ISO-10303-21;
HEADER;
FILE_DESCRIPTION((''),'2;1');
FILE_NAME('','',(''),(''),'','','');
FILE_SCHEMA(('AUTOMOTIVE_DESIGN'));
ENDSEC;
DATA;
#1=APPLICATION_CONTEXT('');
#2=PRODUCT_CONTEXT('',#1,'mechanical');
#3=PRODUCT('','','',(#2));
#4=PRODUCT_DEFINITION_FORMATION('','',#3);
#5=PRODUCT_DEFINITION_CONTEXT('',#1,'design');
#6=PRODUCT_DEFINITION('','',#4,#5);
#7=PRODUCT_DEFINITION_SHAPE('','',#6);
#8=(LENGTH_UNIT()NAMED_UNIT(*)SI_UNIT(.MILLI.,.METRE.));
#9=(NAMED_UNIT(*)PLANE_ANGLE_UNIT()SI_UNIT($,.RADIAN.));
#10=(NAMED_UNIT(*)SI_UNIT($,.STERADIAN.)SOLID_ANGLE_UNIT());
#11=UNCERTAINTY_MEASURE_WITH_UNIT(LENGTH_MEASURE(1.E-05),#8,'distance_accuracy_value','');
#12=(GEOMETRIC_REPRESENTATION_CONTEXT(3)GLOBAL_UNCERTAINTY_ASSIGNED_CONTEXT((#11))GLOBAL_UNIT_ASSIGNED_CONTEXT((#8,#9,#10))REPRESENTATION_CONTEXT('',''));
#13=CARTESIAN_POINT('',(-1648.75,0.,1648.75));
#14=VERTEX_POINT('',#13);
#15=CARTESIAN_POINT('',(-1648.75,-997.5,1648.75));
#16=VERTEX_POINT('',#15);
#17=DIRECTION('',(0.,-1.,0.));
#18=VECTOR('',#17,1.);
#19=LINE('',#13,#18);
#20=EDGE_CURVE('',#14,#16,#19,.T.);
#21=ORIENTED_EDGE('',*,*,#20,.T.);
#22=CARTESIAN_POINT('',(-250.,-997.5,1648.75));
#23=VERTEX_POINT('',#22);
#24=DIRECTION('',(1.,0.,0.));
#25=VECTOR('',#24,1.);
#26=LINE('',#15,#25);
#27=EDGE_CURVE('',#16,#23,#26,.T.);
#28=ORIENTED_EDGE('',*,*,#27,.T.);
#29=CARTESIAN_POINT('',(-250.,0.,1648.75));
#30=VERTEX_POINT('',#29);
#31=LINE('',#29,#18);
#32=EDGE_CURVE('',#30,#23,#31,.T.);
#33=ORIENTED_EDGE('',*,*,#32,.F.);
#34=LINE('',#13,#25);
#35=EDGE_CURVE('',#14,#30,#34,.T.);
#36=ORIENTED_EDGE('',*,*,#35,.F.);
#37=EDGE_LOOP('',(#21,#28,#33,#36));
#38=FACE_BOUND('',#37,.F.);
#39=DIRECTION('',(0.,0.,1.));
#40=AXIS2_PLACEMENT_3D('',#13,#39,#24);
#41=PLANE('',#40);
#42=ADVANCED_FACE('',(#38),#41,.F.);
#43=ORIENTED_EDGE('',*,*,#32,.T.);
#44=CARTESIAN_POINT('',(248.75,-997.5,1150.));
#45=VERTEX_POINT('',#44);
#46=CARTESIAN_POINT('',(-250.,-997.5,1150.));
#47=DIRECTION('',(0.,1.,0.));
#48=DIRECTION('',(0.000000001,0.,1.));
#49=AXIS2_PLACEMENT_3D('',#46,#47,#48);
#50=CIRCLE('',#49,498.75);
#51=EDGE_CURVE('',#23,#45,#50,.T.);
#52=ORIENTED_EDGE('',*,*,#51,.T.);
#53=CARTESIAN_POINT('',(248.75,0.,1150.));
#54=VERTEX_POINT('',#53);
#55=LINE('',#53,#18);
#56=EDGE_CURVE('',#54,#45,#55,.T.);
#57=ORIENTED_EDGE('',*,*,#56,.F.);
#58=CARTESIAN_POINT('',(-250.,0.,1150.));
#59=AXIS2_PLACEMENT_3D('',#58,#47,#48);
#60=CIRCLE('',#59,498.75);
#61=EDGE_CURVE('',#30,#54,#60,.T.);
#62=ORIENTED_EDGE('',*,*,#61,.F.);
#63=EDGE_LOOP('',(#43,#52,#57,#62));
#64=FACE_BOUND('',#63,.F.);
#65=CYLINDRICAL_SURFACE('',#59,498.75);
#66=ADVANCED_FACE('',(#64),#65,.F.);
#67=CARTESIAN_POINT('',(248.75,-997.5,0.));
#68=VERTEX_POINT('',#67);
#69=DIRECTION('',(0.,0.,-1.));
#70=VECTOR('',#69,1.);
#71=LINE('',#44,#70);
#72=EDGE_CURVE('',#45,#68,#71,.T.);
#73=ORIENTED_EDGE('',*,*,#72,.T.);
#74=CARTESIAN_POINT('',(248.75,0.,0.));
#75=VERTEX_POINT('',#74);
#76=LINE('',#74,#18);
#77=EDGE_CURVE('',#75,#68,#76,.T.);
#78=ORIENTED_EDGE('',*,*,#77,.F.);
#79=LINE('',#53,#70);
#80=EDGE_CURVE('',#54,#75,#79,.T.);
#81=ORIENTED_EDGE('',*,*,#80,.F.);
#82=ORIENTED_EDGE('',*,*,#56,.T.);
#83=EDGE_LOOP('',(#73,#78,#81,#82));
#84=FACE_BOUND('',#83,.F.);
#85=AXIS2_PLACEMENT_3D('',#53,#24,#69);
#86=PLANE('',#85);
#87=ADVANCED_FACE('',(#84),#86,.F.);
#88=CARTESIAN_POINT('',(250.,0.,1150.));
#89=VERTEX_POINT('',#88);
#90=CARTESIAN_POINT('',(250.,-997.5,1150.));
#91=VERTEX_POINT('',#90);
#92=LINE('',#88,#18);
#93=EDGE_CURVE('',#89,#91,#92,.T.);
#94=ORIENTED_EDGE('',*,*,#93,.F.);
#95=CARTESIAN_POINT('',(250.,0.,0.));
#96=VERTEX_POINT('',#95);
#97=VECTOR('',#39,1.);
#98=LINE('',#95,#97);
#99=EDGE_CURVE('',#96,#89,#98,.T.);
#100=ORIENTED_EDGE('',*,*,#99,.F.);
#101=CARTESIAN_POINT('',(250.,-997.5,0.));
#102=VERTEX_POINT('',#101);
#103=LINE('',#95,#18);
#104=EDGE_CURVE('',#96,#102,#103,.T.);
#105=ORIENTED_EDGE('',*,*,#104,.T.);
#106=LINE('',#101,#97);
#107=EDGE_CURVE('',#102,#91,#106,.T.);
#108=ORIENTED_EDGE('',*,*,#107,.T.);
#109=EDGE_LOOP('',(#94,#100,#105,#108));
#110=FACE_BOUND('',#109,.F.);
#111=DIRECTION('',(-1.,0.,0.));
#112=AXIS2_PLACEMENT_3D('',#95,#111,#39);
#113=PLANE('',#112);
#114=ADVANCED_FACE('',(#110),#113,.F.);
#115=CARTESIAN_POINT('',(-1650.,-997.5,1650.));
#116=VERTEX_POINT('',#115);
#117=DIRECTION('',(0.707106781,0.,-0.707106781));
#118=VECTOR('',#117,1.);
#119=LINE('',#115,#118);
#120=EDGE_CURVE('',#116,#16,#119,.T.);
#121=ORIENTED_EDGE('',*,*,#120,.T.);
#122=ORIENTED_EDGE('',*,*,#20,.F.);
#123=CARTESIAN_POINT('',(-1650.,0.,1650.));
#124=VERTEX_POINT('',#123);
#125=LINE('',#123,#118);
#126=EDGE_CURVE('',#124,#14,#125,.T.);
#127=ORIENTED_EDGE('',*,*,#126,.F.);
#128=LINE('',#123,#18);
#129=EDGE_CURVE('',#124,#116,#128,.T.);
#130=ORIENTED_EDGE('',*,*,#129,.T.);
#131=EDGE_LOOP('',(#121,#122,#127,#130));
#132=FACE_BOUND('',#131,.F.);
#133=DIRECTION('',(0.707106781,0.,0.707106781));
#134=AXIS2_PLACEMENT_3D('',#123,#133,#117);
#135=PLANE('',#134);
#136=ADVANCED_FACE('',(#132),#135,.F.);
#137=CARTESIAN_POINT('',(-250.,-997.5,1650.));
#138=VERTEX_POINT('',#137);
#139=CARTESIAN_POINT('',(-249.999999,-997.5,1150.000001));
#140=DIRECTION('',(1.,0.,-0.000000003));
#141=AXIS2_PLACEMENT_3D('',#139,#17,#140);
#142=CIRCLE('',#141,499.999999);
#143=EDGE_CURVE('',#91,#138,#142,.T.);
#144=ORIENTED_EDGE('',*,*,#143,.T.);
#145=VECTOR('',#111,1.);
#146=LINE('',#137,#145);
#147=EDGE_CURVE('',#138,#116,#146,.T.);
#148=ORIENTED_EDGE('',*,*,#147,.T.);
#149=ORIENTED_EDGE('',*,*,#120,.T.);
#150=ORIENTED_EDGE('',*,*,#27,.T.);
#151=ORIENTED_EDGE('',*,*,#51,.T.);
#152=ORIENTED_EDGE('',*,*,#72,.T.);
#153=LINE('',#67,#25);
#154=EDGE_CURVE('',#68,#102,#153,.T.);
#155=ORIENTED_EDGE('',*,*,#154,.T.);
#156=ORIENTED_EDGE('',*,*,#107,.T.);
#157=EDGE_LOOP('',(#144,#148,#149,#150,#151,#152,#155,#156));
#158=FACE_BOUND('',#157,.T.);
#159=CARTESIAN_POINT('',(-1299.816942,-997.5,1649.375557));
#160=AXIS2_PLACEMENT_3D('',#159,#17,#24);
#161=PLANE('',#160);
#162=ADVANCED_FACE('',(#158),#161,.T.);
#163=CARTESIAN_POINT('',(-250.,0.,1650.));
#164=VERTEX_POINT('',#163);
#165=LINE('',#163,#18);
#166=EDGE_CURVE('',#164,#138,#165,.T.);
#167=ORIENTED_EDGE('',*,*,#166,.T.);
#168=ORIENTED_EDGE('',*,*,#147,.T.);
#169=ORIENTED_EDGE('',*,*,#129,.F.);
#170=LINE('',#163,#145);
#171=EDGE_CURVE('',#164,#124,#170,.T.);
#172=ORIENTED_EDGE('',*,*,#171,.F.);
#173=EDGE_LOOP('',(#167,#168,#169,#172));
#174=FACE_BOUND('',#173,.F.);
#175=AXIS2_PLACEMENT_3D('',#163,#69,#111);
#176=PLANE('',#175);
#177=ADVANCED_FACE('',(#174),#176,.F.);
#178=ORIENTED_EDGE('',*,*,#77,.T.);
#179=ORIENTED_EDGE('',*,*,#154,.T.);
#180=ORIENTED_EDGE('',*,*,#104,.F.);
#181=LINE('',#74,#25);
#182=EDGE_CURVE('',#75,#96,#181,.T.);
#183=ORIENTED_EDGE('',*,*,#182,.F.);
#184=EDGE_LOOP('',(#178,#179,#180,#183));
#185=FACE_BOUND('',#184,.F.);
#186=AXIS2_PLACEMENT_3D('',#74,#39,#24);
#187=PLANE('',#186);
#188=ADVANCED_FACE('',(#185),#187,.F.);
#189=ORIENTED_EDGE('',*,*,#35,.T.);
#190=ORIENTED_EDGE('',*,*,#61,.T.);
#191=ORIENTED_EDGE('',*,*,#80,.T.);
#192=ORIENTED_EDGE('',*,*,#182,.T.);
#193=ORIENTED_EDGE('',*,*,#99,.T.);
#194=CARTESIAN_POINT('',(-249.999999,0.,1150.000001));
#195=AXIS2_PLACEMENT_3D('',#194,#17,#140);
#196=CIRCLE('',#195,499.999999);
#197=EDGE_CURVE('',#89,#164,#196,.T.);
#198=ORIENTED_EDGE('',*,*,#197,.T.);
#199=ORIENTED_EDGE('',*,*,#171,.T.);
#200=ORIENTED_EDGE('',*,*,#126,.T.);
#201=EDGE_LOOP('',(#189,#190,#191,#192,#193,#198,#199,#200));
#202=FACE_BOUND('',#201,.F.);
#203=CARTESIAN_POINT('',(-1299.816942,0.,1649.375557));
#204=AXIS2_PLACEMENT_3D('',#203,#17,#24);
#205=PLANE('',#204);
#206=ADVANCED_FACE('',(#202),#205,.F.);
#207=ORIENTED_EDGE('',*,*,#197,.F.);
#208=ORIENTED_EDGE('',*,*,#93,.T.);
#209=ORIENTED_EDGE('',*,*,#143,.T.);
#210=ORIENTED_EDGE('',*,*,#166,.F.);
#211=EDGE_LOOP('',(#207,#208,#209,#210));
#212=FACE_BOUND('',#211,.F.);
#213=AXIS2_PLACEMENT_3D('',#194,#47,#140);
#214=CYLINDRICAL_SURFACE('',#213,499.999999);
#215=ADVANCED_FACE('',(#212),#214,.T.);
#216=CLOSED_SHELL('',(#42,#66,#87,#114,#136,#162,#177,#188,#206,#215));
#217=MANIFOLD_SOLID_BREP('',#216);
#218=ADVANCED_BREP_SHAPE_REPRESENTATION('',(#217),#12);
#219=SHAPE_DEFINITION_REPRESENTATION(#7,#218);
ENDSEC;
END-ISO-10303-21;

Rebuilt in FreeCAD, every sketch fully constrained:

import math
import FreeCAD as App
import Part
import Sketcher

V = App.Vector
Q = App.Units.Quantity

doc = App.newDocument("Part")
body = doc.addObject("PartDesign::Body", "Body")

# Sketch on XZ plane
sketch1 = body.newObject("Sketcher::SketchObject", "Sketch")
sketch1.AttachmentSupport = (doc.getObject("XZ_Plane"), [""])
sketch1.MapMode = "FlatFace"
sketch1.addGeometry([
    Part.LineSegment(V(-1648.75, 1648.75, 0), V(-250, 1648.75, 0)),  # 0
    Part.ArcOfCircle(Part.Circle(V(-250, 1150, 0), V(0, 0, 1), 498.75), math.radians(0), math.radians(90)),  # 1
    Part.LineSegment(V(248.75, 1150, 0), V(248.75, 0, 0)),  # 2
    Part.LineSegment(V(248.75, 0, 0), V(250, 0, 0)),  # 3
    Part.LineSegment(V(250, 0, 0), V(250, 1150, 0)),  # 4
    Part.ArcOfCircle(Part.Circle(V(-249.999999, 1150.000001, 0), V(0, 0, 1), 499.999999), math.radians(0), math.radians(90)),  # 5
    Part.LineSegment(V(-250, 1650, 0), V(-1650, 1650, 0)),  # 6
    Part.LineSegment(V(-1650, 1650, 0), V(-1648.75, 1648.75, 0)),  # 7
], False)
sketch1.addConstraint([
    Sketcher.Constraint("Tangent", 0, 2, 1, 2),
    Sketcher.Constraint("Tangent", 1, 1, 2, 1),
    Sketcher.Constraint("Coincident", 2, 2, 3, 1),
    Sketcher.Constraint("Coincident", 3, 2, 4, 1),
    Sketcher.Constraint("Tangent", 4, 2, 5, 1),
    Sketcher.Constraint("Tangent", 5, 2, 6, 1),
    Sketcher.Constraint("Coincident", 6, 2, 7, 1),
    Sketcher.Constraint("Coincident", 7, 2, 0, 1),
    Sketcher.Constraint("Horizontal", 0),
    Sketcher.Constraint("Vertical", 2),
    Sketcher.Constraint("Horizontal", 3),
    Sketcher.Constraint("Vertical", 4),
    Sketcher.Constraint("Horizontal", 6),
    Sketcher.Constraint("Coincident", 5, 3, 1, 3),
    Sketcher.Constraint("PointOnObject", 2, 2, -1),
    Sketcher.Constraint("Radius", 5, 499.999999),
    Sketcher.Constraint("DistanceX", 6, 2, 6, 1, 1400.0),
    Sketcher.Constraint("DistanceY", 2, 2, 2, 1, 1150.0),
    Sketcher.Constraint("Angle", 7, Q("-45 deg")),
    Sketcher.Constraint("Radius", 1, 498.75),
    Sketcher.Constraint("DistanceX", 1, 3, -1, 1, 250.0),
])
pad1 = body.newObject("PartDesign::Pad", "Pad")
pad1.Profile = sketch1
pad1.Length = 997.5

doc.recompute()
